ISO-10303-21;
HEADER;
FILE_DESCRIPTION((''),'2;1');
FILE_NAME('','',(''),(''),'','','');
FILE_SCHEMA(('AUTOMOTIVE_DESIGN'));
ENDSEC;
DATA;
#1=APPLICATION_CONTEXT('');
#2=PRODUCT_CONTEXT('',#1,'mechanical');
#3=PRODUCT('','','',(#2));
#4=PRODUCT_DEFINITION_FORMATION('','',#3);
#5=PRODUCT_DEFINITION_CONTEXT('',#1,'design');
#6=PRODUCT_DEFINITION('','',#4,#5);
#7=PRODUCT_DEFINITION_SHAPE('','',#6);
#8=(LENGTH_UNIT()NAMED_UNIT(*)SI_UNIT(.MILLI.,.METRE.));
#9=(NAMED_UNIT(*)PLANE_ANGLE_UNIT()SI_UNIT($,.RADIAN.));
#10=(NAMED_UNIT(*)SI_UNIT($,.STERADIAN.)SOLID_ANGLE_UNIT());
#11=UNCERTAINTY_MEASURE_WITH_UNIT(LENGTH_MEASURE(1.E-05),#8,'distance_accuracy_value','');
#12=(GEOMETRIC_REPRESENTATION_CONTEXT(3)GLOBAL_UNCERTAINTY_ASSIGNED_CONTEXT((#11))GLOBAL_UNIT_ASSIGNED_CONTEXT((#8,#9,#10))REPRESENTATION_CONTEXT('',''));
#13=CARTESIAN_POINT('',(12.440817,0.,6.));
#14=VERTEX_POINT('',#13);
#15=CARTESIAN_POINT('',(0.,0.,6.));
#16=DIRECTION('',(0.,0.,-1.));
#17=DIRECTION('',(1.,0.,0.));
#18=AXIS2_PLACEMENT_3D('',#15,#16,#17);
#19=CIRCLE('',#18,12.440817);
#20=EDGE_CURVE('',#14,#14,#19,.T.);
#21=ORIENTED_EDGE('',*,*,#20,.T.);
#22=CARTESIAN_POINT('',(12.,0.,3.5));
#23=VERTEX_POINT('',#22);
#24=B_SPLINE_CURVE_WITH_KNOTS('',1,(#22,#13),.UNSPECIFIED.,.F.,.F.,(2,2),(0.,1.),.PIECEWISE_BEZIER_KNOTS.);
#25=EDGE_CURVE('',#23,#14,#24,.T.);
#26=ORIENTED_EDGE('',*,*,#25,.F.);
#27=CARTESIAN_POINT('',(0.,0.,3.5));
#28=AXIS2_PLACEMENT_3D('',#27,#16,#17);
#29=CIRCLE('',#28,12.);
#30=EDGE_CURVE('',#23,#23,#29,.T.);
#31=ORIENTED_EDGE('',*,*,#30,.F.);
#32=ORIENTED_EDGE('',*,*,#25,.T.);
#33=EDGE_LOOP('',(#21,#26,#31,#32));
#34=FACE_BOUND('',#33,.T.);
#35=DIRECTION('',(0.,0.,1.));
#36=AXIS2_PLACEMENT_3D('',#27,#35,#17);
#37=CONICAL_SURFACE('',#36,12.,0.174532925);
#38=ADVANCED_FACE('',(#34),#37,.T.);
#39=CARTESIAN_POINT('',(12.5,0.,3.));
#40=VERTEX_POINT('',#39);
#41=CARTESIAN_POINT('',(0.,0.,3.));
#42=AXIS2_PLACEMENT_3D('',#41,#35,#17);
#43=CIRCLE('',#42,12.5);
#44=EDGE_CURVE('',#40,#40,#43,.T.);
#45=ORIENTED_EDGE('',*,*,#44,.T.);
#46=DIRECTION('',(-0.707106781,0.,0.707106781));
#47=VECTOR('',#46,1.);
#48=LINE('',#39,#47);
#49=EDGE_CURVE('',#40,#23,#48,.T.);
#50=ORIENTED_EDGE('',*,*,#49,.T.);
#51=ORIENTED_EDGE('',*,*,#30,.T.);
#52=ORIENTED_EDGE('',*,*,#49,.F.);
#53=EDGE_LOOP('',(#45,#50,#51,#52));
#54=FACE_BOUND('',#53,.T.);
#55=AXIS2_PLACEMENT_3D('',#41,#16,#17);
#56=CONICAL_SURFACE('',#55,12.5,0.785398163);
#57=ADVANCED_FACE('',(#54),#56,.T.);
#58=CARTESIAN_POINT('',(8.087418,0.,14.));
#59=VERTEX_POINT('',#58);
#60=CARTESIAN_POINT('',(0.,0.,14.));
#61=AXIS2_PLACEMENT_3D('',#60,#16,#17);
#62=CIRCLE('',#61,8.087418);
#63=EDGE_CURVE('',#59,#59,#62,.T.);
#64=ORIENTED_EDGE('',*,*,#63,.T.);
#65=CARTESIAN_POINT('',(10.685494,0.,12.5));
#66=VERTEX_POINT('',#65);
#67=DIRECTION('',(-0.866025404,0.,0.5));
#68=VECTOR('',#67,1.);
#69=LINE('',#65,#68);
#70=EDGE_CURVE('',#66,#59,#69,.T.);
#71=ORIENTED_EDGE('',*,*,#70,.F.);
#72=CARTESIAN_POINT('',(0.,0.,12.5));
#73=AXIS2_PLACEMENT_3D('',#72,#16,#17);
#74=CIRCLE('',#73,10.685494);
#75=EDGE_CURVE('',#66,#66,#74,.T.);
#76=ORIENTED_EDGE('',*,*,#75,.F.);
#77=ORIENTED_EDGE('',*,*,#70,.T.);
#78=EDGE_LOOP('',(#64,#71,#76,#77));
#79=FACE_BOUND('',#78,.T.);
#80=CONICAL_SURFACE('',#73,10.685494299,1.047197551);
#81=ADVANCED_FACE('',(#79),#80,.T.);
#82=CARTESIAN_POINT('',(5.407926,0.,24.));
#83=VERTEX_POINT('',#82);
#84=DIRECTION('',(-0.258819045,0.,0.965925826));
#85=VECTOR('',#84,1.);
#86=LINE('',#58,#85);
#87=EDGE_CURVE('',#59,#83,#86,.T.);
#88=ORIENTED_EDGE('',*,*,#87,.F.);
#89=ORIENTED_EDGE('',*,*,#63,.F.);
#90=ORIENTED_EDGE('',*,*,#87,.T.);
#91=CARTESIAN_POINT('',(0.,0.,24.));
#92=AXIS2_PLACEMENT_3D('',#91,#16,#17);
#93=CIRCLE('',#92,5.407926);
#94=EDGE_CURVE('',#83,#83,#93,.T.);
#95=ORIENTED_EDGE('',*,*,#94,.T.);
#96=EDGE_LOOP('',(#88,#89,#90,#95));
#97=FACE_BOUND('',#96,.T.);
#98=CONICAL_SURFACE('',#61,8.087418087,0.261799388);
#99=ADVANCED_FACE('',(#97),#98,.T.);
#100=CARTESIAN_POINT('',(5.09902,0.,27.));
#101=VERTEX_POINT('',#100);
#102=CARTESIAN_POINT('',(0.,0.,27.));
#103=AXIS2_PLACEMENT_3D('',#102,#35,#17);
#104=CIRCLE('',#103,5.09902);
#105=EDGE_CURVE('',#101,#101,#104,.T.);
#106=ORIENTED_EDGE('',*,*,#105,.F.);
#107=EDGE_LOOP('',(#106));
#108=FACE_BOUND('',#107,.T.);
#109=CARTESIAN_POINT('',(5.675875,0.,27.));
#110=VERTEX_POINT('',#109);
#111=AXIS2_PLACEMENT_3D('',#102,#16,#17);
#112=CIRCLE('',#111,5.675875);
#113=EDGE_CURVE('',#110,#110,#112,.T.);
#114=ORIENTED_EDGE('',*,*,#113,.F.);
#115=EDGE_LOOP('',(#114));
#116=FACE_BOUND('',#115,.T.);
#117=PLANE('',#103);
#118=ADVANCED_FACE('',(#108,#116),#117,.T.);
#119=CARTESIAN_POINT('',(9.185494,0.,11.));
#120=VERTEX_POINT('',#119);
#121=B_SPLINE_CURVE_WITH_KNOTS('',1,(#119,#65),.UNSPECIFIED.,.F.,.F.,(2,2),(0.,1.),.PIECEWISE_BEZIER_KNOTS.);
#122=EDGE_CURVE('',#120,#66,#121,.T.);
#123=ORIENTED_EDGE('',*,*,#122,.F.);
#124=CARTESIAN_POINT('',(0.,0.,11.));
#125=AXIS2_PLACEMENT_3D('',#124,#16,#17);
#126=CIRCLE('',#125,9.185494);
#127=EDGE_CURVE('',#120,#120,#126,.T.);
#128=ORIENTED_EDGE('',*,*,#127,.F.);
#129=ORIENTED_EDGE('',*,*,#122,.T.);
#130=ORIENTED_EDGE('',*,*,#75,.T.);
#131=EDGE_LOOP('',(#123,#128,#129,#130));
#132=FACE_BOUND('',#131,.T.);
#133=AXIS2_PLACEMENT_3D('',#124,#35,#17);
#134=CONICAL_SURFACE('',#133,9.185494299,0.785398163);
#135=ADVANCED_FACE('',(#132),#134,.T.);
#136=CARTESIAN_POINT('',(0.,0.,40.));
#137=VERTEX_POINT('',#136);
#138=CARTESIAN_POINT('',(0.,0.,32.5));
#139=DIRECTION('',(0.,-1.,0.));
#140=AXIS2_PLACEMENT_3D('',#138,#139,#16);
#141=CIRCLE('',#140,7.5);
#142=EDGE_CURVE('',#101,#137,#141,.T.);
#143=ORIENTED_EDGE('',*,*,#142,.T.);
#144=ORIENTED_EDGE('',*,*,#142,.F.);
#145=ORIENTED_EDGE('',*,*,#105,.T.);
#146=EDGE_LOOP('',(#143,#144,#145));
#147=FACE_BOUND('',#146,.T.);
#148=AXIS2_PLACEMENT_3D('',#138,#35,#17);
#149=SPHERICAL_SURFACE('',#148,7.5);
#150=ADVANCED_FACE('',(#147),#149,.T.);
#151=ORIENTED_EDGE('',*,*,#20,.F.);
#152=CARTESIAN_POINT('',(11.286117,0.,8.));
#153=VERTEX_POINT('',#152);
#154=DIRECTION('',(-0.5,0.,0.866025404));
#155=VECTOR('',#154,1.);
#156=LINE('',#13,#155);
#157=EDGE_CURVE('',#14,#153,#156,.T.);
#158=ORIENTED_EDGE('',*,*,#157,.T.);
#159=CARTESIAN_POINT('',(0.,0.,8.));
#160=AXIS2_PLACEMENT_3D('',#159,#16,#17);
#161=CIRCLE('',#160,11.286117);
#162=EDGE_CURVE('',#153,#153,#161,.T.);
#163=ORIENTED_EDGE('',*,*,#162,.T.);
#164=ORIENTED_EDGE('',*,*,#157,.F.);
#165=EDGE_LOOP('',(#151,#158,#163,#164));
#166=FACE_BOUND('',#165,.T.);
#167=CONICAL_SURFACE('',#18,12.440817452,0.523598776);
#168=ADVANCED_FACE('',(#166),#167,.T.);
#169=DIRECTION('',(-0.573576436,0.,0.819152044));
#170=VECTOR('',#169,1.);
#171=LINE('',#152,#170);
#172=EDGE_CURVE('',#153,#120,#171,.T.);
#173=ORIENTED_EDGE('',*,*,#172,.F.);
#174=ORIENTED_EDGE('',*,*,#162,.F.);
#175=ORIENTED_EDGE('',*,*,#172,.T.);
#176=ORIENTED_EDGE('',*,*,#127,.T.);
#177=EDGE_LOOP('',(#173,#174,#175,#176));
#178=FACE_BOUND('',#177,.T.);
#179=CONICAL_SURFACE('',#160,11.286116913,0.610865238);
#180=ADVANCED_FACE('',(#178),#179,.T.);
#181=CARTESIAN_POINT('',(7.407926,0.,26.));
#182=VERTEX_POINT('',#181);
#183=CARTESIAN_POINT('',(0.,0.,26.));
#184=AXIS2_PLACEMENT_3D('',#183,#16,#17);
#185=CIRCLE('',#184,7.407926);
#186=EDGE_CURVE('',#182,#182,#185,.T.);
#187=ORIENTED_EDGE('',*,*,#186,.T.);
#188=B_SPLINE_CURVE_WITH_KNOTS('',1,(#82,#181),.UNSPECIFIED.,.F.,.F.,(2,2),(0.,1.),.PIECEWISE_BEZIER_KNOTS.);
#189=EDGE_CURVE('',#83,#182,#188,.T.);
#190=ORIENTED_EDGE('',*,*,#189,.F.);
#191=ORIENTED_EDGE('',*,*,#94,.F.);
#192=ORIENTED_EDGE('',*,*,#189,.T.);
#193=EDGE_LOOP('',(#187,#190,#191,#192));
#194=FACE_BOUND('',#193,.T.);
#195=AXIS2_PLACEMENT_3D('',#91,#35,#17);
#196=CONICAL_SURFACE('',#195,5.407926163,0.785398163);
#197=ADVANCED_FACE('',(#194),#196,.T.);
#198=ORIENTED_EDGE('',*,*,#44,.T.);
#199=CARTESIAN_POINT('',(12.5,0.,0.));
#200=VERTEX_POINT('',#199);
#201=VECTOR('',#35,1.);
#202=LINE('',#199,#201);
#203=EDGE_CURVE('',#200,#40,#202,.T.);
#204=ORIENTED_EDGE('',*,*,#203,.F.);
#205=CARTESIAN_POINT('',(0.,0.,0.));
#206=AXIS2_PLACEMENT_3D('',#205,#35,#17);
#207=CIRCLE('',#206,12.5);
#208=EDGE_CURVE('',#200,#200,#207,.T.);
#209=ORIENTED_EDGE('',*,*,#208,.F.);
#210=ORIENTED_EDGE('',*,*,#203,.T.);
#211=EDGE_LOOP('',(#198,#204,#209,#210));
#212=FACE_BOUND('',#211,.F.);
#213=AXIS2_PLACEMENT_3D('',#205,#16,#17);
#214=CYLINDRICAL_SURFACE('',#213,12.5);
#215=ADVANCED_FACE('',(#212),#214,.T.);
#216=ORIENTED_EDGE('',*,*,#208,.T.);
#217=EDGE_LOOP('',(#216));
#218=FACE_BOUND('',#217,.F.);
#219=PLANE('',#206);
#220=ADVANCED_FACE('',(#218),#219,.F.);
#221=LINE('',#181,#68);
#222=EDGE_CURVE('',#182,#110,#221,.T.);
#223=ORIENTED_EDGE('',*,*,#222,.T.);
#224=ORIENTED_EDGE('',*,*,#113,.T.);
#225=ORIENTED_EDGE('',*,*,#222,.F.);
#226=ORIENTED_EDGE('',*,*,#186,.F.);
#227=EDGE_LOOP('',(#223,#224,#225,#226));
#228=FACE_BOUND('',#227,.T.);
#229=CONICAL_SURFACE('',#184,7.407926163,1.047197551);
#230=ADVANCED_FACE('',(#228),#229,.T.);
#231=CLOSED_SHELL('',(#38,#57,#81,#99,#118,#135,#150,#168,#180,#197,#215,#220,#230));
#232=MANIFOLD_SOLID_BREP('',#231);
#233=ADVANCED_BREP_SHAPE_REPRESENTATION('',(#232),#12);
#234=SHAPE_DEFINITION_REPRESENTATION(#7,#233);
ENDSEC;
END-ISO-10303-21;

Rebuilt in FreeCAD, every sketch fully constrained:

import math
import FreeCAD as App
import Part
import Sketcher
from FreeCAD import Vector

doc = App.newDocument("Part")
params = doc.addObject("Spreadsheet::Sheet", "Params")
for row, (alias, value) in enumerate([
    ("sketch1_diameter", "25 mm"),
    ("pad1_length", "3 mm"),
    ("sketch2_diameter", "25 mm"),
    ("pad2_length", "0.5 mm"),
    ("pad2_taper", "-45 deg"),
    ("sketch3_diameter", "24 mm"),
    ("pad3_length", "2.5 mm"),
    ("pad3_taper", "10 deg"),
    ("pad4_length", "2 mm"),
    ("pad4_taper", "-30 deg"),
    ("pad5_length", "3 mm"),
    ("pad5_taper", "-35 deg"),
    ("pad6_length", "1.5 mm"),
    ("pad6_taper", "45 deg"),
    ("pad7_length", "1.5 mm"),
    ("pad7_taper", "-60 deg"),
    ("pad8_length", "10 mm"),
    ("pad8_taper", "-15 deg"),
    ("pad9_length", "2 mm"),
    ("pad9_taper", "45 deg"),
    ("pad10_length", "1 mm"),
    ("pad10_taper", "-60 deg"),
    ("sketch11_radius", "7.5 mm"),
    ("revolution_angle", "360 deg"),
], start=1):
    params.set(f"A{row}", alias)
    params.set(f"B{row}", "=" + value)
    params.setAlias(f"B{row}", alias)

body = doc.addObject("PartDesign::Body", "Body")

# Sketch on XY plane
sketch1 = body.newObject("Sketcher::SketchObject", "Sketch")
sketch1.AttachmentSupport = (doc.getObject("XY_Plane"), [""])
sketch1.MapMode = "FlatFace"
sketch1.addGeometry(Part.Circle(Vector(0, 0, 0), Vector(0, 0, 1), 12), False)
sketch1.addConstraint(Sketcher.Constraint("Coincident", 0, 3, -1, 1))
sketch1.addConstraint(Sketcher.Constraint("Diameter", 0, 25.0))
sketch1.setExpression("Constraints[1]", "Params.sketch1_diameter")
pad1 = body.newObject("PartDesign::Pad", "Pad")
pad1.Profile = sketch1
pad1.setExpression("Length", "Params.pad1_length")

# Sketch on XY plane
sketch2 = body.newObject("Sketcher::SketchObject", "Sketch001")
sketch2.AttachmentSupport = (doc.getObject("XY_Plane"), [""])
sketch2.MapMode = "FlatFace"
sketch2.AttachmentOffset = App.Placement(Vector(0, 0, 3), App.Rotation())
sketch2.addGeometry(Part.Circle(Vector(0, 0, 0), Vector(0, 0, 1), 12), False)
sketch2.addConstraint(Sketcher.Constraint("Coincident", 0, 3, -1, 1))
sketch2.addConstraint(Sketcher.Constraint("Diameter", 0, 25.0))
sketch2.setExpression("Constraints[1]", "Params.sketch2_diameter")
pad2 = body.newObject("PartDesign::Pad", "Pad001")
pad2.Profile = sketch2
pad2.setExpression("Length", "Params.pad2_length")
pad2.setExpression("TaperAngle", "Params.pad2_taper")

# Sketch on XY plane
sketch3 = body.newObject("Sketcher::SketchObject", "Sketch002")
sketch3.AttachmentSupport = (doc.getObject("XY_Plane"), [""])
sketch3.MapMode = "FlatFace"
sketch3.AttachmentOffset = App.Placement(Vector(0, 0, 3.5), App.Rotation())
sketch3.addGeometry(Part.Circle(Vector(0, 0, 0), Vector(0, 0, 1), 12), False)
sketch3.addConstraint(Sketcher.Constraint("Coincident", 0, 3, -1, 1))
sketch3.addConstraint(Sketcher.Constraint("Diameter", 0, 24.0))
sketch3.setExpression("Constraints[1]", "Params.sketch3_diameter")
pad3 = body.newObject("PartDesign::Pad", "Pad002")
pad3.Profile = sketch3
pad3.setExpression("Length", "Params.pad3_length")
pad3.setExpression("TaperAngle", "Params.pad3_taper")

# Sketch on XY plane
sketch4 = body.newObject("Sketcher::SketchObject", "Sketch003")
sketch4.AttachmentSupport = (doc.getObject("XY_Plane"), [""])
sketch4.MapMode = "FlatFace"
sketch4.AttachmentOffset = App.Placement(Vector(0, 0, 6), App.Rotation())
sketch4.addGeometry(Part.Circle(Vector(0, 0, 0), Vector(0, 0, 1), 12), False)
sketch4.addConstraint(Sketcher.Constraint("Coincident", 0, 3, -1, 1))
sketch4.addConstraint(Sketcher.Constraint("Diameter", 0, 24.881635))
pad4 = body.newObject("PartDesign::Pad", "Pad003")
pad4.Profile = sketch4
pad4.setExpression("Length", "Params.pad4_length")
pad4.setExpression("TaperAngle", "Params.pad4_taper")

# Sketch on XY plane
sketch5 = body.newObject("Sketcher::SketchObject", "Sketch004")
sketch5.AttachmentSupport = (doc.getObject("XY_Plane"), [""])
sketch5.MapMode = "FlatFace"
sketch5.AttachmentOffset = App.Placement(Vector(0, 0, 8), App.Rotation())
sketch5.addGeometry(Part.Circle(Vector(0, 0, 0), Vector(0, 0, 1), 11), False)
sketch5.addConstraint(Sketcher.Constraint("Coincident", 0, 3, -1, 1))
sketch5.addConstraint(Sketcher.Constraint("Diameter", 0, 22.572234))
pad5 = body.newObject("PartDesign::Pad", "Pad004")
pad5.Profile = sketch5
pad5.setExpression("Length", "Params.pad5_length")
pad5.setExpression("TaperAngle", "Params.pad5_taper")

# Sketch on XY plane
sketch6 = body.newObject("Sketcher::SketchObject", "Sketch005")
sketch6.AttachmentSupport = (doc.getObject("XY_Plane"), [""])
sketch6.MapMode = "FlatFace"
sketch6.AttachmentOffset = App.Placement(Vector(0, 0, 11), App.Rotation())
sketch6.addGeometry(Part.Circle(Vector(0, 0, 0), Vector(0, 0, 1), 9), False)
sketch6.addConstraint(Sketcher.Constraint("Coincident", 0, 3, -1, 1))
sketch6.addConstraint(Sketcher.Constraint("Diameter", 0, 18.370989))
pad6 = body.newObject("PartDesign::Pad", "Pad005")
pad6.Profile = sketch6
pad6.setExpression("Length", "Params.pad6_length")
pad6.setExpression("TaperAngle", "Params.pad6_taper")

# Sketch on XY plane
sketch7 = body.newObject("Sketcher::SketchObject", "Sketch006")
sketch7.AttachmentSupport = (doc.getObject("XY_Plane"), [""])
sketch7.MapMode = "FlatFace"
sketch7.AttachmentOffset = App.Placement(Vector(0, 0, 12.5), App.Rotation())
sketch7.addGeometry(Part.Circle(Vector(0, 0, 0), Vector(0, 0, 1), 11), False)
sketch7.addConstraint(Sketcher.Constraint("Coincident", 0, 3, -1, 1))
sketch7.addConstraint(Sketcher.Constraint("Diameter", 0, 21.370989))
pad7 = body.newObject("PartDesign::Pad", "Pad006")
pad7.Profile = sketch7
pad7.setExpression("Length", "Params.pad7_length")
pad7.setExpression("TaperAngle", "Params.pad7_taper")

# Sketch on XY plane
sketch8 = body.newObject("Sketcher::SketchObject", "Sketch007")
sketch8.AttachmentSupport = (doc.getObject("XY_Plane"), [""])
sketch8.MapMode = "FlatFace"
sketch8.AttachmentOffset = App.Placement(Vector(0, 0, 14), App.Rotation())
sketch8.addGeometry(Part.Circle(Vector(0, 0, 0), Vector(0, 0, 1), 8), False)
sketch8.addConstraint(Sketcher.Constraint("Coincident", 0, 3, -1, 1))
sketch8.addConstraint(Sketcher.Constraint("Diameter", 0, 16.174836))
pad8 = body.newObject("PartDesign::Pad", "Pad007")
pad8.Profile = sketch8
pad8.setExpression("Length", "Params.pad8_length")
pad8.setExpression("TaperAngle", "Params.pad8_taper")

# Sketch on XY plane
sketch9 = body.newObject("Sketcher::SketchObject", "Sketch008")
sketch9.AttachmentSupport = (doc.getObject("XY_Plane"), [""])
sketch9.MapMode = "FlatFace"
sketch9.AttachmentOffset = App.Placement(Vector(0, 0, 24), App.Rotation())
sketch9.addGeometry(Part.Circle(Vector(0, 0, 0), Vector(0, 0, 1), 5), False)
sketch9.addConstraint(Sketcher.Constraint("Coincident", 0, 3, -1, 1))
sketch9.addConstraint(Sketcher.Constraint("Diameter", 0, 10.815852))
pad9 = body.newObject("PartDesign::Pad", "Pad008")
pad9.Profile = sketch9
pad9.setExpression("Length", "Params.pad9_length")
pad9.setExpression("TaperAngle", "Params.pad9_taper")

# Sketch on XY plane
sketch10 = body.newObject("Sketcher::SketchObject", "Sketch009")
sketch10.AttachmentSupport = (doc.getObject("XY_Plane"), [""])
sketch10.MapMode = "FlatFace"
sketch10.AttachmentOffset = App.Placement(Vector(0, 0, 26), App.Rotation())
sketch10.addGeometry(Part.Circle(Vector(0, 0, 0), Vector(0, 0, 1), 7), False)
sketch10.addConstraint(Sketcher.Constraint("Coincident", 0, 3, -1, 1))
sketch10.addConstraint(Sketcher.Constraint("Diameter", 0, 14.815852))
pad10 = body.newObject("PartDesign::Pad", "Pad009")
pad10.Profile = sketch10
pad10.setExpression("Length", "Params.pad10_length")
pad10.setExpression("TaperAngle", "Params.pad10_taper")

# Sketch on XZ plane
sketch11 = body.newObject("Sketcher::SketchObject", "Sketch010")
sketch11.AttachmentSupport = (doc.getObject("XZ_Plane"), [""])
sketch11.MapMode = "FlatFace"
sketch11.addGeometry(Part.ArcOfCircle(Part.Circle(Vector(0, 32, 0), Vector(0, 0, 1), 8), math.radians(-90), math.radians(90)), False)
sketch11.addGeometry(Part.LineSegment(Vector(0, 40, 0), Vector(0, 25, 0)), False)
sketch11.addConstraint(Sketcher.Constraint("Coincident", 0, 1, 1, 2))
sketch11.addConstraint(Sketcher.Constraint("Coincident", 1, 1, 0, 2))
sketch11.addConstraint(Sketcher.Constraint("Vertical", 1))
sketch11.addConstraint(Sketcher.Constraint("PointOnObject", 0, 3, -2))
sketch11.addConstraint(Sketcher.Constraint("PointOnObject", 0, 1, -2))
sketch11.addConstraint(Sketcher.Constraint("Radius", 0, 7.5))
sketch11.addConstraint(Sketcher.Constraint("DistanceY", -1, 1, 0, 1, 25.0))
sketch11.setExpression("Constraints[5]", "Params.sketch11_radius")
revolution = body.newObject("PartDesign::Revolution", "Revolution")
revolution.Profile = sketch11
revolution.ReferenceAxis = (sketch11, ["V_Axis"])
revolution.setExpression("Angle", "Params.revolution_angle")

doc.recompute()
